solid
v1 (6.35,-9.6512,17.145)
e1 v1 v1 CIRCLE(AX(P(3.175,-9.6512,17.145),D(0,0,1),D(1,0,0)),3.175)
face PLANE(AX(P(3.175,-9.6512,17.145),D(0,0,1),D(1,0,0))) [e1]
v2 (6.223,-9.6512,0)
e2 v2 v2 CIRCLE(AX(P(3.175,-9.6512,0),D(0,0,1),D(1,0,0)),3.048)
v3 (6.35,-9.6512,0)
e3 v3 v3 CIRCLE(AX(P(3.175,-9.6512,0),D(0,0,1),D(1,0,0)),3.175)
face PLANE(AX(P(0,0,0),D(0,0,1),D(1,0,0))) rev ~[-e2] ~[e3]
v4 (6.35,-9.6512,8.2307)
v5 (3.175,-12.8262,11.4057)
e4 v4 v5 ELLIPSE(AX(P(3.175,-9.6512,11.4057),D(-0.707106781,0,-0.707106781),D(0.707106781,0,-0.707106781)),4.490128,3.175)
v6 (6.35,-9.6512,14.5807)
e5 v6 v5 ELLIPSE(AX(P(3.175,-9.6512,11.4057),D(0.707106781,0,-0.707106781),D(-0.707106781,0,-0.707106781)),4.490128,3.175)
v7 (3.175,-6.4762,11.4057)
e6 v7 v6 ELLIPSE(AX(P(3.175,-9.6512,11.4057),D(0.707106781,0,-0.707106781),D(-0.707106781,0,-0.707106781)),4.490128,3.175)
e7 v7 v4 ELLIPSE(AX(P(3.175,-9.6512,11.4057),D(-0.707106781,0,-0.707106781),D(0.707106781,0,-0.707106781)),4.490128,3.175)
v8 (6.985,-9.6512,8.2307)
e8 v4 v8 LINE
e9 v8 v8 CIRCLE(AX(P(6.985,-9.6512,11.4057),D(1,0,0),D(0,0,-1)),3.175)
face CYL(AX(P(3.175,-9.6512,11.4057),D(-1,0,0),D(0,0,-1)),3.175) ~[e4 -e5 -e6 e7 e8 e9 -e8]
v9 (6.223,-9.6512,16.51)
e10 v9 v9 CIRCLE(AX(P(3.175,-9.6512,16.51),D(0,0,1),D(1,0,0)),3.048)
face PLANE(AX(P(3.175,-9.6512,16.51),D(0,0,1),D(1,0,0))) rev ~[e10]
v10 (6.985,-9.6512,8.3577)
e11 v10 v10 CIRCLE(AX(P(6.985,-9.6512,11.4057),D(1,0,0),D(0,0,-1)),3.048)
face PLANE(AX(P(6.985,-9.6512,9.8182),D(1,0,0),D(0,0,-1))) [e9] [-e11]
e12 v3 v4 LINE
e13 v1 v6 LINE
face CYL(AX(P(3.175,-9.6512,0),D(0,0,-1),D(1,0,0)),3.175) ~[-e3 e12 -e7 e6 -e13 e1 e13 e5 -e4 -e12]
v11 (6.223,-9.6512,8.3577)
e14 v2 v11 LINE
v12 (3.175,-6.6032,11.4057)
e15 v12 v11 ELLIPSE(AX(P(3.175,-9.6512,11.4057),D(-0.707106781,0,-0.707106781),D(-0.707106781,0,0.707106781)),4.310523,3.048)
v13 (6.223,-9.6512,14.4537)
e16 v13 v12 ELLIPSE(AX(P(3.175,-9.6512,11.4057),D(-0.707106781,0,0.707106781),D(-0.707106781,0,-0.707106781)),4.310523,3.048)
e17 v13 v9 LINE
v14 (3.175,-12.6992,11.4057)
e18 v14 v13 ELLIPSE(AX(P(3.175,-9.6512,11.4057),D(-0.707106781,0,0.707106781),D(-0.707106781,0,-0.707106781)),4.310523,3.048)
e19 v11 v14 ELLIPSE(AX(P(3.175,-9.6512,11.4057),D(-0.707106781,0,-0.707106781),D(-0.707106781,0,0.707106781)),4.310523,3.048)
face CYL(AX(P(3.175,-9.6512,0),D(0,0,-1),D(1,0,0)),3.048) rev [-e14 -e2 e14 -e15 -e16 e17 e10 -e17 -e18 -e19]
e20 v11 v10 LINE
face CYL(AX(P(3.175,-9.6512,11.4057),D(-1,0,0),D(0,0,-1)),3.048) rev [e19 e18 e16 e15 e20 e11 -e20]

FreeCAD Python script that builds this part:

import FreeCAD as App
import Part
import Sketcher

V = App.Vector
Q = App.Units.Quantity

doc = App.newDocument("Part")
body = doc.addObject("PartDesign::Body", "Body")

sketch1 = body.newObject("Sketcher::SketchObject", "Sketch")
sketch1.AttachmentSupport = (doc.getObject("XY_Plane"), [""])
sketch1.MapMode = "FlatFace"
sketch1.addGeometry([
    Part.Circle(V(3.2, -9.7, 0), V(0, 0, 1), 3.2),
    Part.Circle(V(3.2, -9.7, 0), V(0, 0, 1), 3),
], False)
sketch1.addConstraint([
    Sketcher.Constraint("Coincident", 1, 3, 0, 3),
    Sketcher.Constraint("Diameter", 1, Q("0.24 in")),
    Sketcher.Constraint("Diameter", 0, Q("0.25 in")),
    Sketcher.Constraint("DistanceX", -1, 1, 0, 3, Q("0.125 in")),
    Sketcher.Constraint("DistanceY", 0, 3, -1, 1, 9.6512),
])
pad1 = body.newObject("PartDesign::Pad", "Pad")
pad1.Profile = sketch1
pad1.Length = Q("0.65 in")

sketch2 = body.newObject("Sketcher::SketchObject", "Sketch001")
sketch2.AttachmentSupport = (doc.getObject("YZ_Plane"), [""])
sketch2.MapMode = "FlatFace"
sketch2.AttachmentOffset = App.Placement(V(0, 0, 0.275 * 25.4), App.Rotation())
sketch2.addGeometry(Part.Circle(V(-9.7, 11.4, 0), V(0, 0, 1), 3.2), False)
sketch2.addConstraint([
    Sketcher.Constraint("Diameter", 0, Q("0.25 in")),
    Sketcher.Constraint("DistanceX", 0, 3, -1, 1, 9.6512),
    Sketcher.Constraint("DistanceY", -1, 1, 0, 3, 11.4057),
])
pocket1 = body.newObject("PartDesign::Pocket", "Pocket")
pocket1.Profile = sketch2
pocket1.Length = Q("0.15 in")

sketch3 = body.newObject("Sketcher::SketchObject", "Sketch002")
sketch3.AttachmentSupport = (doc.getObject("YZ_Plane"), [""])
sketch3.MapMode = "FlatFace"
sketch3.AttachmentOffset = App.Placement(V(0, 0, 0.125 * 25.4), App.Rotation())
sketch3.addGeometry([
    Part.Circle(V(-9.7, 11.4, 0), V(0, 0, 1), 3.2),
    Part.Circle(V(-9.7, 11.4, 0), V(0, 0, 1), 3),
], False)
sketch3.addConstraint([
    Sketcher.Constraint("Coincident", 1, 3, 0, 3),
    Sketcher.Constraint("Diameter", 0, Q("0.25 in")),
    Sketcher.Constraint("Diameter", 1, Q("0.24 in")),
    Sketcher.Constraint("DistanceX", 0, 3, -1, 1, 9.6512),
    Sketcher.Constraint("DistanceY", -1, 1, 0, 3, 11.4057),
])
pad2 = body.newObject("PartDesign::Pad", "Pad001")
pad2.Profile = sketch3
pad2.Length = Q("0.15 in")

sketch4 = body.newObject("Sketcher::SketchObject", "Sketch003")
sketch4.AttachmentSupport = (doc.getObject("XY_Plane"), [""])
sketch4.MapMode = "FlatFace"
sketch4.AttachmentOffset = App.Placement(V(0, 0, 0.65 * 25.4), App.Rotation())
sketch4.addGeometry(Part.Circle(V(3.2, -9.7, 0), V(0, 0, 1), 3), False)
sketch4.addConstraint([
    Sketcher.Constraint("Diameter", 0, Q("0.24 in")),
    Sketcher.Constraint("DistanceX", -1, 1, 0, 3, Q("0.125 in")),
    Sketcher.Constraint("DistanceY", 0, 3, -1, 1, 9.6512),
])
pocket2 = body.newObject("PartDesign::Pocket", "Pocket001")
pocket2.Profile = sketch4
pocket2.Type = "ThroughAll"

sketch5 = body.newObject("Sketcher::SketchObject", "Sketch004")
sketch5.AttachmentSupport = (doc.getObject("XY_Plane"), [""])
sketch5.MapMode = "FlatFace"
sketch5.AttachmentOffset = App.Placement(V(0, 0, 0.65 * 25.4), App.Rotation())
sketch5.addGeometry(Part.Circle(V(3.2, -9.7, 0), V(0, 0, 1), 3.2), False)
sketch5.addConstraint([
    Sketcher.Constraint("Diameter", 0, Q("0.25 in")),
    Sketcher.Constraint("DistanceX", -1, 1, 0, 3, Q("0.125 in")),
    Sketcher.Constraint("DistanceY", 0, 3, -1, 1, 9.6512),
])
pad3 = body.newObject("PartDesign::Pad", "Pad002")
pad3.Profile = sketch5
pad3.Length = Q("0.025 in")

doc.recompute()
